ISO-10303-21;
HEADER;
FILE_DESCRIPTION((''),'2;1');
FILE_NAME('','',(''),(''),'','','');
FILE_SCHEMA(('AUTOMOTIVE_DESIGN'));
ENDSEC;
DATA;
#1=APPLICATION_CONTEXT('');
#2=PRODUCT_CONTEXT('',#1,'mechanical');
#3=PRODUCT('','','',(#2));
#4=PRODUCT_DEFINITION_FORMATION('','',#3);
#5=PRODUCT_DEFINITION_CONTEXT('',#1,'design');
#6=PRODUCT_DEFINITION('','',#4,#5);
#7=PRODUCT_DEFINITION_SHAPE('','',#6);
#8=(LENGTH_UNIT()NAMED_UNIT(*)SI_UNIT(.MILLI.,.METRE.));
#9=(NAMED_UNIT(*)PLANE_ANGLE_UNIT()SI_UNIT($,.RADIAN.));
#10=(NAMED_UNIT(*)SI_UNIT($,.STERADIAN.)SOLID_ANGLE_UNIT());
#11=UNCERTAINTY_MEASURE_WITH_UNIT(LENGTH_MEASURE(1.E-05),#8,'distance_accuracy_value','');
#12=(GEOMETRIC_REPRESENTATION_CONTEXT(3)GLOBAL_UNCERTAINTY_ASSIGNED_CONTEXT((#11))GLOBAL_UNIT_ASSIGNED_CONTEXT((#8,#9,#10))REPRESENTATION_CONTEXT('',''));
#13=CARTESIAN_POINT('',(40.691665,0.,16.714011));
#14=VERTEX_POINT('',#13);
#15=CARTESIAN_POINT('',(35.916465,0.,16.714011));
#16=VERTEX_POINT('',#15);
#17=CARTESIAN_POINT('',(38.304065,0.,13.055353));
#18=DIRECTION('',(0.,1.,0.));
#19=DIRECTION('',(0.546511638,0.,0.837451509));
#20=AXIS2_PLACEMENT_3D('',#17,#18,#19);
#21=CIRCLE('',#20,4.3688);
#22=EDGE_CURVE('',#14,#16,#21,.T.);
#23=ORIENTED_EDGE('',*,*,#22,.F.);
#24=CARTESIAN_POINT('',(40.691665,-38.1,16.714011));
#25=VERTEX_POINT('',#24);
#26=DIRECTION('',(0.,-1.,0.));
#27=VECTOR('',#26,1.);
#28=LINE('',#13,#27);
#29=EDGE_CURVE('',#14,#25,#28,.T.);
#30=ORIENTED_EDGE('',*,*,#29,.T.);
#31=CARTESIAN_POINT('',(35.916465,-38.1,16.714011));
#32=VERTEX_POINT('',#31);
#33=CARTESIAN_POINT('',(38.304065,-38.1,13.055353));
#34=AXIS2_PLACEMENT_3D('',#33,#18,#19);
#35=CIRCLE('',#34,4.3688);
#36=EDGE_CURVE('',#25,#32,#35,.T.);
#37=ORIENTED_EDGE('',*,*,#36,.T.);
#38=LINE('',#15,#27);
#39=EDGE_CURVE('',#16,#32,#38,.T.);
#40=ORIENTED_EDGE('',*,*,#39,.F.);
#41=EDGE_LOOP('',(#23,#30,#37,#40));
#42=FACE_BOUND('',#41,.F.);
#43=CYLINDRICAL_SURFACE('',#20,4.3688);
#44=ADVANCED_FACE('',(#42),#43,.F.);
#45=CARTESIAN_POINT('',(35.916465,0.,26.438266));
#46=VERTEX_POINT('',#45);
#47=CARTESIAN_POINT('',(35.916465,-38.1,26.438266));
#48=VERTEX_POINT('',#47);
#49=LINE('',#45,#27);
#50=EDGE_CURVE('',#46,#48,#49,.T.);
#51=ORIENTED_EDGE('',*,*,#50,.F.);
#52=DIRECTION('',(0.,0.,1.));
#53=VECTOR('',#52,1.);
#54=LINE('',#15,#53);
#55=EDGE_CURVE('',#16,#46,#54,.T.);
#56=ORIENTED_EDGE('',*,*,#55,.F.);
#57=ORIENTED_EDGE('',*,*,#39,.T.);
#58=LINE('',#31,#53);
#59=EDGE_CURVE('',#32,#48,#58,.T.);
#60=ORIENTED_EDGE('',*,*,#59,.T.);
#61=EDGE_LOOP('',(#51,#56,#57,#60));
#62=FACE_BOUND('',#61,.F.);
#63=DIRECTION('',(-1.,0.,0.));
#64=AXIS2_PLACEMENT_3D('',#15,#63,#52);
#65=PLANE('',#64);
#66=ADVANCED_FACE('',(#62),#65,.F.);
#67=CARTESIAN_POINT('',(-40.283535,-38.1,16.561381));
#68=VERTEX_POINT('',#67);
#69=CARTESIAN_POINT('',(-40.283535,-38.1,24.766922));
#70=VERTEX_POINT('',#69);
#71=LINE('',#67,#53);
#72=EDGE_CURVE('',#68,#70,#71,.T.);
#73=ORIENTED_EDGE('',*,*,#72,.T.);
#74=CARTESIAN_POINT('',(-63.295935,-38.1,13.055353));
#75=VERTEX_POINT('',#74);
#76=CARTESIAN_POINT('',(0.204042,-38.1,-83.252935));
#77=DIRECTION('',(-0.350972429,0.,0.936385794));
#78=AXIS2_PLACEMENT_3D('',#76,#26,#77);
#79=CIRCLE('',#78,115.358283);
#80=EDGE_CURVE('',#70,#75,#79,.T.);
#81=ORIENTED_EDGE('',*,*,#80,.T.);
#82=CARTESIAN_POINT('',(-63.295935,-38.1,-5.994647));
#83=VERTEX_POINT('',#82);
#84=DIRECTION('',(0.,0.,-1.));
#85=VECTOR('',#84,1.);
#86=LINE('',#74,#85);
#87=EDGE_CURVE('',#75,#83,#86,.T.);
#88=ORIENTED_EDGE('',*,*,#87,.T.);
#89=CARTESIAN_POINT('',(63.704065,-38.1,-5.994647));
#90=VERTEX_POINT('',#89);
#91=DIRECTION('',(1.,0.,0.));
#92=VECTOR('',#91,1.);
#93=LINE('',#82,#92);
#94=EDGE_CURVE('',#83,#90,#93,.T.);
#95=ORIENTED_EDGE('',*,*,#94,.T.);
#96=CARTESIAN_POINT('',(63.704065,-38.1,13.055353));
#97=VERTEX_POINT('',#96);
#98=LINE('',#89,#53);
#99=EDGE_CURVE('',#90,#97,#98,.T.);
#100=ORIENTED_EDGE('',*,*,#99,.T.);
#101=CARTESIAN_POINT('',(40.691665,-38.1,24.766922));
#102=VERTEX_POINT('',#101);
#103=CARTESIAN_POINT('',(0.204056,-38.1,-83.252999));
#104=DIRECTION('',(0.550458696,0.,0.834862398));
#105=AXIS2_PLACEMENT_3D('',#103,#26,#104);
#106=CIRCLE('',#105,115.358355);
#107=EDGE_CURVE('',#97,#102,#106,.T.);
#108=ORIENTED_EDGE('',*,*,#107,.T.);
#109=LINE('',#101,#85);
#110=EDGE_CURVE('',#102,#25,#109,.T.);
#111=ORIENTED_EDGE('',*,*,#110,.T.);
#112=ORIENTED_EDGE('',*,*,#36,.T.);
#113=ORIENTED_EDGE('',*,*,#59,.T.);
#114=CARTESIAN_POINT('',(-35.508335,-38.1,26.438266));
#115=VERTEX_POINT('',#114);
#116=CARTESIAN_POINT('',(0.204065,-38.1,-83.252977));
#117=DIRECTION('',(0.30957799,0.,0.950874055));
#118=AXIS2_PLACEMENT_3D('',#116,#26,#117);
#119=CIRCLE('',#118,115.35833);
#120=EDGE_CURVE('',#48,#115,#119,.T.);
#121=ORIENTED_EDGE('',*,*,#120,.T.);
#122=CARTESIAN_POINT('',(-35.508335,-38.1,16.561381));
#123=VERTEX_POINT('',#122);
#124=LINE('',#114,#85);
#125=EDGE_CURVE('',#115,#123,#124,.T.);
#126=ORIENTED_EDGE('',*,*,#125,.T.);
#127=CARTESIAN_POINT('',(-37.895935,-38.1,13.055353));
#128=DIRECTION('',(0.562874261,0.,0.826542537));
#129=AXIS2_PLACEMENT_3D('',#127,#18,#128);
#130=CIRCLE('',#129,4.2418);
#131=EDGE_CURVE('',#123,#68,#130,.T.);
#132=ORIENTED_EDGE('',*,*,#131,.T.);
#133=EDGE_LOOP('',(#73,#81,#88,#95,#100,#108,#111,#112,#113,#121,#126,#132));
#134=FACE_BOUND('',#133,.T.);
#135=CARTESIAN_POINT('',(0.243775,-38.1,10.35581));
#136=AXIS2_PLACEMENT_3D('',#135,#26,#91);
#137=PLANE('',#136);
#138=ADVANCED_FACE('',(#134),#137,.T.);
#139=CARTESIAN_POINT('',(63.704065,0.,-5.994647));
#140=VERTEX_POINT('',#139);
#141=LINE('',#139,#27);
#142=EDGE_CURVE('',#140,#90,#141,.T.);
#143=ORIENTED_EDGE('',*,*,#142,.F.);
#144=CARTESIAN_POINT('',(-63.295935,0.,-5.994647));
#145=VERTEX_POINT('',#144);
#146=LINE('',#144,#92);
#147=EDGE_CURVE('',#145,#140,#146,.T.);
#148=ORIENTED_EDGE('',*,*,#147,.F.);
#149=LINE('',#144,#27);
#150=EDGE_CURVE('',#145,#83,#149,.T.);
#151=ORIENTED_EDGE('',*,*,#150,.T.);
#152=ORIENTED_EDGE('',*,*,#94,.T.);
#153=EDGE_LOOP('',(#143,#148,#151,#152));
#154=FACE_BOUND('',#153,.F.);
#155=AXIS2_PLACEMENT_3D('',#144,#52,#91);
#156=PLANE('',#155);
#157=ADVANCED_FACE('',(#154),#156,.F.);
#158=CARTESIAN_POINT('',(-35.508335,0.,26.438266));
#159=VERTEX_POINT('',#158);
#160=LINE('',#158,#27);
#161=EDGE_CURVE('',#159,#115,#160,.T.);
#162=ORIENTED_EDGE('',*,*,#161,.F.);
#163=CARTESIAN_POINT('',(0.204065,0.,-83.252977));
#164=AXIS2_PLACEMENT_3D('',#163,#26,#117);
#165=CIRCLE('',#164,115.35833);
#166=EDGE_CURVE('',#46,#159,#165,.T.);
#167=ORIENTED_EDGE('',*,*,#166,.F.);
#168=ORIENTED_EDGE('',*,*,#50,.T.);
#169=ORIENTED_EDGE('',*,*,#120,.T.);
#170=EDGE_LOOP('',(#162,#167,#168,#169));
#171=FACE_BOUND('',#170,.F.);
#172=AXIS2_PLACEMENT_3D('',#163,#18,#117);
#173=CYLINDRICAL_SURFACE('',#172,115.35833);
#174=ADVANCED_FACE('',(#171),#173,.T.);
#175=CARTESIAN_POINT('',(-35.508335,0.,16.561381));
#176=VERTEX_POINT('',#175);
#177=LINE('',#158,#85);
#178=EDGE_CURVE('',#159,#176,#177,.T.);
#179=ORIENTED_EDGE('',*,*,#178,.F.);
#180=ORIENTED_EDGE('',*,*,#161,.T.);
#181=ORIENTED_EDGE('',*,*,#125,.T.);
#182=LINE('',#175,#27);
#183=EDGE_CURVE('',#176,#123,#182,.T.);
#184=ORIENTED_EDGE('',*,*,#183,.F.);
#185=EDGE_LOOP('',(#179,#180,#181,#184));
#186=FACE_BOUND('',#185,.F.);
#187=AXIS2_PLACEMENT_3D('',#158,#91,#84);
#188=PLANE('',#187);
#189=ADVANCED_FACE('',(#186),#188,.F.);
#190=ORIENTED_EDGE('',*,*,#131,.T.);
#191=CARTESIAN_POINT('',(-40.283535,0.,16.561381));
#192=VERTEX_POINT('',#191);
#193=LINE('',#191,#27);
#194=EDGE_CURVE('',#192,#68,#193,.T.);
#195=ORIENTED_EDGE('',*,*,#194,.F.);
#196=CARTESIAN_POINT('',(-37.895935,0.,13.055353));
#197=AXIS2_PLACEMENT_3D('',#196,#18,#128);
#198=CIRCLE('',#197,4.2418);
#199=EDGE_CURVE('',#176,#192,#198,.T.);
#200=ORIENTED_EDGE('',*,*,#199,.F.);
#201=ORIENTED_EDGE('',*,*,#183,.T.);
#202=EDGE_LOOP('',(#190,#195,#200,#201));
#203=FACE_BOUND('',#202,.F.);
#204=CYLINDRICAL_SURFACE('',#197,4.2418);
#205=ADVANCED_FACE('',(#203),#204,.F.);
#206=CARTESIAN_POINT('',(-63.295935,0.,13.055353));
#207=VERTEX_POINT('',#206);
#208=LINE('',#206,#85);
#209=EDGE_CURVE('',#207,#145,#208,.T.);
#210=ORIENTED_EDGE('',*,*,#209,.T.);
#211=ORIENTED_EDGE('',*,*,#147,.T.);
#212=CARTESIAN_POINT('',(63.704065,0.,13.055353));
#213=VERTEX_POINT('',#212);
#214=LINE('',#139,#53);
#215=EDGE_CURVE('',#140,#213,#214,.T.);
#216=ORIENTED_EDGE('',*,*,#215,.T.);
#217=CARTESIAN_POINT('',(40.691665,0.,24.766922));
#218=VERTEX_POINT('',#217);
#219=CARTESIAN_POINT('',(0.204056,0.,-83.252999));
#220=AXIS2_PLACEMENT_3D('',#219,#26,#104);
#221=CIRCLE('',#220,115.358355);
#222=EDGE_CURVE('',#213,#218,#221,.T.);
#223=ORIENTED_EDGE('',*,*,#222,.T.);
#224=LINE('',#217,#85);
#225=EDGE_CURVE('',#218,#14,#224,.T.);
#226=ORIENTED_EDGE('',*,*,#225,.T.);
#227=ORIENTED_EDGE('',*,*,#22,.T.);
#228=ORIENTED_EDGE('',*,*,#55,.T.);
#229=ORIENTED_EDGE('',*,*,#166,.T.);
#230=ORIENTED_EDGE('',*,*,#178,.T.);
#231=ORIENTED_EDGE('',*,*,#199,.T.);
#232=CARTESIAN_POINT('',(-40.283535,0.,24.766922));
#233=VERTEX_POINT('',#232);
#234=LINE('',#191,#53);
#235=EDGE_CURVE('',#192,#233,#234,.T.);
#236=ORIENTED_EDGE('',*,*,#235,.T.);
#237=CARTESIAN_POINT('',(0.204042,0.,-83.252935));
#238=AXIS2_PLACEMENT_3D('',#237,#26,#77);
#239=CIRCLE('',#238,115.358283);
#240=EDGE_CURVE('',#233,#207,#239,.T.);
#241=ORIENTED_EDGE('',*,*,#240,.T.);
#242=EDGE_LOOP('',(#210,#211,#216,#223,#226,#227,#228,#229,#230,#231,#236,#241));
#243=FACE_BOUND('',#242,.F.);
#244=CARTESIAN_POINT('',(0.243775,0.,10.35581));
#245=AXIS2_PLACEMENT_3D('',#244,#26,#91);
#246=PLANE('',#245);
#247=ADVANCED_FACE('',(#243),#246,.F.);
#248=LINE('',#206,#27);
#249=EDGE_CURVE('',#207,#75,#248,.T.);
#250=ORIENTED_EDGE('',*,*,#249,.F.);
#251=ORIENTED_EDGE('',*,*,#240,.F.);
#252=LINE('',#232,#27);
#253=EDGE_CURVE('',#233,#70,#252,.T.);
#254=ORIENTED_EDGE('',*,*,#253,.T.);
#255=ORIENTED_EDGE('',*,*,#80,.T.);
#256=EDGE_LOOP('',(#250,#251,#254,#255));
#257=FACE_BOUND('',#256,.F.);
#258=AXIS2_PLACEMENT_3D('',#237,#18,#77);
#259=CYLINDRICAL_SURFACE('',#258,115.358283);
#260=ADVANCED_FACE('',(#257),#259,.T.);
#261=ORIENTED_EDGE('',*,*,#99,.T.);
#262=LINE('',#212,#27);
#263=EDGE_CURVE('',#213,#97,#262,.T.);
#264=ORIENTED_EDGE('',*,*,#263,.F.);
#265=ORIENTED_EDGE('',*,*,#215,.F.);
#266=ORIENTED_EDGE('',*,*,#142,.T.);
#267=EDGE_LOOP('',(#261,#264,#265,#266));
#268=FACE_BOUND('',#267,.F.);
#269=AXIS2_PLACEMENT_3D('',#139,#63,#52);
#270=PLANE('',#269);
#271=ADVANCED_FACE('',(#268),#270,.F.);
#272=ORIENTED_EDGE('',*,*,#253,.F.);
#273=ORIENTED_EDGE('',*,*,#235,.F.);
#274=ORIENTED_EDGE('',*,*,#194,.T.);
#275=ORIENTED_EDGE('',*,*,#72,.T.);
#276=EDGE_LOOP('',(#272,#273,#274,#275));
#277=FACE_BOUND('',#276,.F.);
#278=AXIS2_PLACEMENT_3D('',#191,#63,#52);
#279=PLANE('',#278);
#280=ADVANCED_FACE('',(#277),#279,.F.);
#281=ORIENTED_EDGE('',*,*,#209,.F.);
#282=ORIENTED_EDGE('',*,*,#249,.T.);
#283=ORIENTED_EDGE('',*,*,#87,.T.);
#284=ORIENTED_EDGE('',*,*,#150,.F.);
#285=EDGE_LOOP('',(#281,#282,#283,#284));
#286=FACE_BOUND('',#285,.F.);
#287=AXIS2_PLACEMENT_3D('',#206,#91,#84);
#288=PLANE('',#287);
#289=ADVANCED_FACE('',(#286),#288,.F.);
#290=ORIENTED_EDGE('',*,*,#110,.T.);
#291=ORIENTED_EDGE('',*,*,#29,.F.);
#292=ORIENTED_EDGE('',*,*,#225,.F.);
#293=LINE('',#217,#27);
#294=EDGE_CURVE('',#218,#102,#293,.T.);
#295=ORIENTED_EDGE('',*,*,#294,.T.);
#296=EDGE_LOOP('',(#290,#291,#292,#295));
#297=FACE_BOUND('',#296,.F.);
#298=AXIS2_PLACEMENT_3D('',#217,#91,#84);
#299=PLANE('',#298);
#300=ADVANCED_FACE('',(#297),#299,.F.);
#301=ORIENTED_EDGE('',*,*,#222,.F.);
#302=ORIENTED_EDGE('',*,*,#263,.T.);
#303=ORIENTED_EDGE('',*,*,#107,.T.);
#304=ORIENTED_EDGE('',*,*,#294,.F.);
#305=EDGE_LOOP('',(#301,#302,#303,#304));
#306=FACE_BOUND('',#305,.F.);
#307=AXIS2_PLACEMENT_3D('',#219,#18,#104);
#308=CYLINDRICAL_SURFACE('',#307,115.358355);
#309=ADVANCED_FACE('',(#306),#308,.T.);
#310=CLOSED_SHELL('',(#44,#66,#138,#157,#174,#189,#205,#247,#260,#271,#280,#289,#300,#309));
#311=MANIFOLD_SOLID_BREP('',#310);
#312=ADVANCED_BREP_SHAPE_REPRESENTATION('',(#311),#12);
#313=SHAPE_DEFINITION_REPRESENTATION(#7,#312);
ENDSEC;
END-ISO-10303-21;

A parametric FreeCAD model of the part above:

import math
import FreeCAD as App
import Part
import Sketcher
Q = App.Units.Quantity

doc = App.newDocument("Part")
body = doc.addObject("PartDesign::Body", "Body")

# Sketch on XZ plane
sketch1 = doc.addObject("Sketcher::SketchObject", "Sketch")
body.addObject(sketch1)
sketch1.AttachmentSupport = (doc.XZ_Plane, [""])
sketch1.MapMode = "FlatFace"
sketch1.addGeometry([
    Part.LineSegment(App.Vector(-63.3, 13.1, 0), App.Vector(-63.3, -6, 0)),  # 0
    Part.LineSegment(App.Vector(-63.3, -6, 0), App.Vector(63.7, -6, 0)),  # 1
    Part.LineSegment(App.Vector(63.7, -6, 0), App.Vector(63.7, 13.1, 0)),  # 2
    Part.ArcOfCircle(Part.Circle(App.Vector(0.2, -83.3, 0), App.Vector(0, 0, 1), 115.4), math.radians(56.6), math.radians(69.45)),  # 3
    Part.LineSegment(App.Vector(40.7, 24.8, 0), App.Vector(40.7, 16.7, 0)),  # 4
    Part.ArcOfCircle(Part.Circle(App.Vector(38.3, 13.1, 0), App.Vector(0, 0, 1), 4.4), math.radians(123), math.radians(417)),  # 5
    Part.LineSegment(App.Vector(35.9, 16.7, 0), App.Vector(35.9, 26.4, 0)),  # 6
    Part.ArcOfCircle(Part.Circle(App.Vector(0.2, -83.3, 0), App.Vector(0, 0, 1), 115.4), math.radians(72), math.radians(108)),  # 7
    Part.LineSegment(App.Vector(-35.5, 26.4, 0), App.Vector(-35.5, 16.6, 0)),  # 8
    Part.ArcOfCircle(Part.Circle(App.Vector(-37.9, 13.1, 0), App.Vector(0, 0, 1), 4.2), math.radians(124), math.radians(416)),  # 9
    Part.LineSegment(App.Vector(-40.3, 16.6, 0), App.Vector(-40.3, 24.8, 0)),  # 10
    Part.ArcOfCircle(Part.Circle(App.Vector(0.2, -83.3, 0), App.Vector(0, 0, 1), 115.4), math.radians(110.55), math.radians(123.4)),  # 11
], False)
sketch1.addConstraint([
    Sketcher.Constraint("Coincident", 0, 2, 1, 1),
    Sketcher.Constraint("Coincident", 1, 2, 2, 1),
    Sketcher.Constraint("Coincident", 2, 2, 3, 1),
    Sketcher.Constraint("Coincident", 3, 2, 4, 1),
    Sketcher.Constraint("Coincident", 4, 2, 5, 2),
    Sketcher.Constraint("Coincident", 5, 1, 6, 1),
    Sketcher.Constraint("Coincident", 6, 2, 7, 1),
    Sketcher.Constraint("Coincident", 7, 2, 8, 1),
    Sketcher.Constraint("Coincident", 8, 2, 9, 2),
    Sketcher.Constraint("Coincident", 9, 1, 10, 1),
    Sketcher.Constraint("Coincident", 10, 2, 11, 1),
    Sketcher.Constraint("Coincident", 11, 2, 0, 1),
    Sketcher.Constraint("Vertical", 0),
    Sketcher.Constraint("Horizontal", 1),
    Sketcher.Constraint("Vertical", 2),
    Sketcher.Constraint("Vertical", 4),
    Sketcher.Constraint("Vertical", 6),
    Sketcher.Constraint("Vertical", 8),
    Sketcher.Constraint("Vertical", 10),
    Sketcher.Constraint("Horizontal", 5, 3, 9, 3),
    Sketcher.Constraint("Horizontal", 9, 3, 2, 2),
    Sketcher.Constraint("Horizontal", 4, 2, 5, 1),
    Sketcher.Constraint("Horizontal", 6, 2, 7, 2),
    Sketcher.Constraint("Horizontal", 8, 2, 9, 1),
    Sketcher.Constraint("Horizontal", 3, 2, 10, 2),
    Sketcher.Constraint("Horizontal", 2, 2, 11, 2),
    Sketcher.Constraint("DistanceX", 1, 1, 1, 2, Q("5 in")),
    Sketcher.Constraint("Radius", 5, Q("0.172 in")),
    Sketcher.Constraint("Radius", 9, Q("0.167 in")),
    Sketcher.Constraint("DistanceX", 9, 3, 5, 3, Q("3 in")),
    Sketcher.Constraint("DistanceX", 0, 2, 9, 3, Q("1 in")),
    Sketcher.Constraint("DistanceX", 9, 1, 5, 1, Q("3 in")),
    Sketcher.Constraint("DistanceY", 0, 2, 0, 1, Q("0.75 in")),
    Sketcher.Constraint("Radius", 7, 115.35833),
    Sketcher.Constraint("DistanceX", 5, 3, 3, 2, Q("0.094 in")),
    Sketcher.Constraint("Radius", 3, 115.358355),
    Sketcher.Constraint("Radius", 11, 115.358283),
    Sketcher.Constraint("DistanceY", 4, 2, 4, 1, 8.052911),
    Sketcher.Constraint("DistanceY", 3, 3, -1, 1, 83.252999),
    Sketcher.Constraint("DistanceY", 6, 1, 6, 2, 9.724255),
    Sketcher.Constraint("DistanceX", -1, 1, 11, 3, 0.204042),
])
pad1 = doc.addObject("PartDesign::Pad", "Pad")
body.addObject(pad1)
pad1.Profile = sketch1
pad1.Length = Q("1.5 in")

doc.recompute()
